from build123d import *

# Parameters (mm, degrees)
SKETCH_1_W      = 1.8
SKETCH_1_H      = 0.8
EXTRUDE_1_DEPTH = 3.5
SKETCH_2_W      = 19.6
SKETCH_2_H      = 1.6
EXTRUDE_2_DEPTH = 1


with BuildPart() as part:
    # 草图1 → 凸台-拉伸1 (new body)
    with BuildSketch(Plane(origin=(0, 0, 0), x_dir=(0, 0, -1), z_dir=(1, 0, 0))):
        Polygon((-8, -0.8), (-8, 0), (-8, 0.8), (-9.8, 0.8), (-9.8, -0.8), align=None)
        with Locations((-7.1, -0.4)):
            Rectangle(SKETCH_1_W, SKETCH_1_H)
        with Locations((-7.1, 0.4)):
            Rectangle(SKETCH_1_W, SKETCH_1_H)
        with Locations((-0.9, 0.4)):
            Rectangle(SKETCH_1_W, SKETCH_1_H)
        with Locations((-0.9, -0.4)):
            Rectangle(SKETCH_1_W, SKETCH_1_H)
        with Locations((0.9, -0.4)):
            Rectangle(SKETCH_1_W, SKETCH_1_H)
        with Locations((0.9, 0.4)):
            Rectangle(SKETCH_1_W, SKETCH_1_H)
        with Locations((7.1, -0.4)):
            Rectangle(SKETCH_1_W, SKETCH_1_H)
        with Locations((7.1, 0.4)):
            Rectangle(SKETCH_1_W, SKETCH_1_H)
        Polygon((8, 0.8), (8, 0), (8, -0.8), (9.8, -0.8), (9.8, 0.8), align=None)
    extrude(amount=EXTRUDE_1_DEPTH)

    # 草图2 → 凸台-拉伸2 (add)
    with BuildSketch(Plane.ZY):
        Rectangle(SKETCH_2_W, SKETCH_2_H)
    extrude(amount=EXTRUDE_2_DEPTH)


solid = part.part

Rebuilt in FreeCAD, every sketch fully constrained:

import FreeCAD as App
import Part
import Sketcher
Q = App.Units.Quantity


def add_polygon(sketch, points):
    """Adds a closed chain of lines whose ends are joined by coincident constraints."""
    first, n = sketch.GeometryCount, len(points)
    for a, b in zip(points, points[1:] + points[:1]):
        sketch.addGeometry(Part.LineSegment(App.Vector(*a, 0), App.Vector(*b, 0)), False)
    for i in range(n):
        sketch.addConstraint(Sketcher.Constraint("Coincident", first + i, 2, first + (i + 1) % n, 1))

doc = App.newDocument("Part")
body = doc.addObject("PartDesign::Body", "Body")
body.AllowCompound = True

# Sketch on YZ plane
sketch1 = body.newObject("Sketcher::SketchObject", "Sketch")
sketch1.AttachmentSupport = (doc.getObject("YZ_Plane"), [""])
sketch1.MapMode = "FlatFace"
add_polygon(sketch1, [(0.8, 9.8), (-0.8, 9.8), (-0.8, 6.2), (0.8, 6.2)])  # lines 0-3
add_polygon(sketch1, [(0.8, 1.8), (-0.8, 1.8), (-0.8, -1.8), (0.8, -1.8)])  # lines 4-7
add_polygon(sketch1, [(-0.8, -6.2), (-0.8, -9.8), (0.8, -9.8), (0.8, -6.2)])  # lines 8-11
sketch1.addConstraint(Sketcher.Constraint("Horizontal", 0))
sketch1.addConstraint(Sketcher.Constraint("Vertical", 1))
sketch1.addConstraint(Sketcher.Constraint("Horizontal", 2))
sketch1.addConstraint(Sketcher.Constraint("Vertical", 3))
sketch1.addConstraint(Sketcher.Constraint("Horizontal", 4))
sketch1.addConstraint(Sketcher.Constraint("Vertical", 5))
sketch1.addConstraint(Sketcher.Constraint("Horizontal", 6))
sketch1.addConstraint(Sketcher.Constraint("Vertical", 7))
sketch1.addConstraint(Sketcher.Constraint("Vertical", 8))
sketch1.addConstraint(Sketcher.Constraint("Horizontal", 9))
sketch1.addConstraint(Sketcher.Constraint("Vertical", 10))
sketch1.addConstraint(Sketcher.Constraint("Horizontal", 11))
sketch1.addConstraint(Sketcher.Constraint("Symmetric", 4, 2, 6, 2, -1, 1))
sketch1.addConstraint(Sketcher.Constraint("Symmetric", 3, 2, 8, 2, -1, 1))
sketch1.addConstraint(Sketcher.Constraint("Symmetric", 1, 2, 10, 2, -1, 1))
sketch1.addConstraint(Sketcher.Constraint("Vertical", 1, 2, 4, 2))
sketch1.addConstraint(Sketcher.Constraint("Vertical", 3, 2, 6, 2))
sketch1.addConstraint(Sketcher.Constraint("Equal", 3, 5))
sketch1.addConstraint(Sketcher.Constraint("DistanceX", 0, 2, 0, 1, Q("1.6 mm")))
sketch1.addConstraint(Sketcher.Constraint("DistanceY", 1, 2, 1, 1, Q("3.6 mm")))
sketch1.addConstraint(Sketcher.Constraint("DistanceY", 4, 2, 0, 2, Q("8 mm")))
pad1 = body.newObject("PartDesign::Pad", "Pad")
pad1.Profile = sketch1
pad1.Length = 3.5

# Sketch on YZ plane
sketch2 = body.newObject("Sketcher::SketchObject", "Sketch001")
sketch2.AttachmentSupport = (doc.getObject("YZ_Plane"), [""])
sketch2.MapMode = "FlatFace"
add_polygon(sketch2, [(0.8, -9.8), (-0.8, -9.8), (-0.8, 9.8), (0.8, 9.8)])  # lines 0-3
sketch2.addConstraint(Sketcher.Constraint("Horizontal", 0))
sketch2.addConstraint(Sketcher.Constraint("Vertical", 1))
sketch2.addConstraint(Sketcher.Constraint("Horizontal", 2))
sketch2.addConstraint(Sketcher.Constraint("Vertical", 3))
sketch2.addConstraint(Sketcher.Constraint("Symmetric", 0, 2, 2, 2, -1, 1))
sketch2.addConstraint(Sketcher.Constraint("DistanceX", 0, 2, 0, 1, Q("1.6 mm")))
sketch2.addConstraint(Sketcher.Constraint("DistanceY", 1, 1, 1, 2, Q("19.6 mm")))
pad2 = body.newObject("PartDesign::Pad", "Pad001")
pad2.Profile = sketch2
pad2.Length = 1
pad2.Reversed = True

doc.recompute()
